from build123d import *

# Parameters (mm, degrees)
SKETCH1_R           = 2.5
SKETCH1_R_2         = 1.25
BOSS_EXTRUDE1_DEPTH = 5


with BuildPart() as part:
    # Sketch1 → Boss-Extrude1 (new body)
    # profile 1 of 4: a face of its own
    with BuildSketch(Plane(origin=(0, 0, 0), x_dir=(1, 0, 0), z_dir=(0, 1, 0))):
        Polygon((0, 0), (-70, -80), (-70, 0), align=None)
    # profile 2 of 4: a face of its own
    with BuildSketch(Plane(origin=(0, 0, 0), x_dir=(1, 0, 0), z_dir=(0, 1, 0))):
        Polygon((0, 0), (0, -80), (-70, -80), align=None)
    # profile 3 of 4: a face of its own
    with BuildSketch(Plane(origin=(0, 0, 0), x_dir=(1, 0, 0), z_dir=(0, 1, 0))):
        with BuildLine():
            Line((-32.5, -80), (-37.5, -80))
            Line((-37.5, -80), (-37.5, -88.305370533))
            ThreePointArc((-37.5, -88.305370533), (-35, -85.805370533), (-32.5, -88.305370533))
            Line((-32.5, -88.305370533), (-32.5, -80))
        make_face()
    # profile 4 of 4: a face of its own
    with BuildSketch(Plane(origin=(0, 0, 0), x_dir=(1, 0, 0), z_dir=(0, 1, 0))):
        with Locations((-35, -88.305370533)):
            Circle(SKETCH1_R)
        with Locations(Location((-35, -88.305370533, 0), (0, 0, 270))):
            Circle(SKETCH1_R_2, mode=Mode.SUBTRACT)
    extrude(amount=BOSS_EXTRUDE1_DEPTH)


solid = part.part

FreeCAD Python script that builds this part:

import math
import FreeCAD as App
import Part
import Sketcher
from FreeCAD import Vector

doc = App.newDocument("Part")
body = doc.addObject("PartDesign::Body", "Body")

# Sketch on XZ plane
sketch1 = body.newObject("Sketcher::SketchObject", "Sketch")
sketch1.AttachmentSupport = (doc.getObject("XZ_Plane"), [""])
sketch1.MapMode = "FlatFace"
sketch1.addGeometry([
    Part.LineSegment(Vector(-70, 0, 0), Vector(-70, 80, 0)),  # 0
    Part.LineSegment(Vector(-70, 80, 0), Vector(-37.5, 80, 0)),  # 1
    Part.LineSegment(Vector(-37.5, 80, 0), Vector(-37.5, 88.3, 0)),  # 2
    Part.ArcOfCircle(Part.Circle(Vector(-35, 88.3, 0), Vector(0, 0, 1), 2.5), math.radians(0), math.radians(180)),  # 3
    Part.LineSegment(Vector(-32.5, 88.3, 0), Vector(-32.5, 80, 0)),  # 4
    Part.LineSegment(Vector(-32.5, 80, 0), Vector(0, 80, 0)),  # 5
    Part.LineSegment(Vector(0, 80, 0), Vector(0, 0, 0)),  # 6
    Part.LineSegment(Vector(0, 0, 0), Vector(-70, 0, 0)),  # 7
    Part.Circle(Vector(-35, 88.3, 0), Vector(0, 0, 1), 1.2),  # 8
], False)
sketch1.addConstraint([
    Sketcher.Constraint("Coincident", 0, 2, 1, 1),
    Sketcher.Constraint("Coincident", 1, 2, 2, 1),
    Sketcher.Constraint("Tangent", 2, 2, 3, 2),
    Sketcher.Constraint("Tangent", 3, 1, 4, 1),
    Sketcher.Constraint("Coincident", 4, 2, 5, 1),
    Sketcher.Constraint("Coincident", 5, 2, 6, 1),
    Sketcher.Constraint("Coincident", 6, 2, 7, 1),
    Sketcher.Constraint("Coincident", 7, 2, 0, 1),
    Sketcher.Constraint("Vertical", 0),
    Sketcher.Constraint("Horizontal", 1),
    Sketcher.Constraint("Vertical", 2),
    Sketcher.Constraint("Vertical", 4),
    Sketcher.Constraint("Horizontal", 5),
    Sketcher.Constraint("Vertical", 6),
    Sketcher.Constraint("Horizontal", 7),
    Sketcher.Constraint("Coincident", 6, 2, -1, 1),
    Sketcher.Constraint("Coincident", 8, 3, 3, 3),
    Sketcher.Constraint("Horizontal", 1, 2, 4, 2),
    Sketcher.Constraint("Equal", 1, 5),
    Sketcher.Constraint("Diameter", 8, 2.5),
    Sketcher.Constraint("Radius", 3, 2.5),
    Sketcher.Constraint("DistanceX", 7, 2, 7, 1, 70.0),
    Sketcher.Constraint("DistanceY", 0, 1, 0, 2, 80.0),
    Sketcher.Constraint("DistanceY", 2, 1, 2, 2, 8.305371),
])
pad1 = body.newObject("PartDesign::Pad", "Pad")
pad1.Profile = sketch1
pad1.Length = 5
pad1.Reversed = True

doc.recompute()
